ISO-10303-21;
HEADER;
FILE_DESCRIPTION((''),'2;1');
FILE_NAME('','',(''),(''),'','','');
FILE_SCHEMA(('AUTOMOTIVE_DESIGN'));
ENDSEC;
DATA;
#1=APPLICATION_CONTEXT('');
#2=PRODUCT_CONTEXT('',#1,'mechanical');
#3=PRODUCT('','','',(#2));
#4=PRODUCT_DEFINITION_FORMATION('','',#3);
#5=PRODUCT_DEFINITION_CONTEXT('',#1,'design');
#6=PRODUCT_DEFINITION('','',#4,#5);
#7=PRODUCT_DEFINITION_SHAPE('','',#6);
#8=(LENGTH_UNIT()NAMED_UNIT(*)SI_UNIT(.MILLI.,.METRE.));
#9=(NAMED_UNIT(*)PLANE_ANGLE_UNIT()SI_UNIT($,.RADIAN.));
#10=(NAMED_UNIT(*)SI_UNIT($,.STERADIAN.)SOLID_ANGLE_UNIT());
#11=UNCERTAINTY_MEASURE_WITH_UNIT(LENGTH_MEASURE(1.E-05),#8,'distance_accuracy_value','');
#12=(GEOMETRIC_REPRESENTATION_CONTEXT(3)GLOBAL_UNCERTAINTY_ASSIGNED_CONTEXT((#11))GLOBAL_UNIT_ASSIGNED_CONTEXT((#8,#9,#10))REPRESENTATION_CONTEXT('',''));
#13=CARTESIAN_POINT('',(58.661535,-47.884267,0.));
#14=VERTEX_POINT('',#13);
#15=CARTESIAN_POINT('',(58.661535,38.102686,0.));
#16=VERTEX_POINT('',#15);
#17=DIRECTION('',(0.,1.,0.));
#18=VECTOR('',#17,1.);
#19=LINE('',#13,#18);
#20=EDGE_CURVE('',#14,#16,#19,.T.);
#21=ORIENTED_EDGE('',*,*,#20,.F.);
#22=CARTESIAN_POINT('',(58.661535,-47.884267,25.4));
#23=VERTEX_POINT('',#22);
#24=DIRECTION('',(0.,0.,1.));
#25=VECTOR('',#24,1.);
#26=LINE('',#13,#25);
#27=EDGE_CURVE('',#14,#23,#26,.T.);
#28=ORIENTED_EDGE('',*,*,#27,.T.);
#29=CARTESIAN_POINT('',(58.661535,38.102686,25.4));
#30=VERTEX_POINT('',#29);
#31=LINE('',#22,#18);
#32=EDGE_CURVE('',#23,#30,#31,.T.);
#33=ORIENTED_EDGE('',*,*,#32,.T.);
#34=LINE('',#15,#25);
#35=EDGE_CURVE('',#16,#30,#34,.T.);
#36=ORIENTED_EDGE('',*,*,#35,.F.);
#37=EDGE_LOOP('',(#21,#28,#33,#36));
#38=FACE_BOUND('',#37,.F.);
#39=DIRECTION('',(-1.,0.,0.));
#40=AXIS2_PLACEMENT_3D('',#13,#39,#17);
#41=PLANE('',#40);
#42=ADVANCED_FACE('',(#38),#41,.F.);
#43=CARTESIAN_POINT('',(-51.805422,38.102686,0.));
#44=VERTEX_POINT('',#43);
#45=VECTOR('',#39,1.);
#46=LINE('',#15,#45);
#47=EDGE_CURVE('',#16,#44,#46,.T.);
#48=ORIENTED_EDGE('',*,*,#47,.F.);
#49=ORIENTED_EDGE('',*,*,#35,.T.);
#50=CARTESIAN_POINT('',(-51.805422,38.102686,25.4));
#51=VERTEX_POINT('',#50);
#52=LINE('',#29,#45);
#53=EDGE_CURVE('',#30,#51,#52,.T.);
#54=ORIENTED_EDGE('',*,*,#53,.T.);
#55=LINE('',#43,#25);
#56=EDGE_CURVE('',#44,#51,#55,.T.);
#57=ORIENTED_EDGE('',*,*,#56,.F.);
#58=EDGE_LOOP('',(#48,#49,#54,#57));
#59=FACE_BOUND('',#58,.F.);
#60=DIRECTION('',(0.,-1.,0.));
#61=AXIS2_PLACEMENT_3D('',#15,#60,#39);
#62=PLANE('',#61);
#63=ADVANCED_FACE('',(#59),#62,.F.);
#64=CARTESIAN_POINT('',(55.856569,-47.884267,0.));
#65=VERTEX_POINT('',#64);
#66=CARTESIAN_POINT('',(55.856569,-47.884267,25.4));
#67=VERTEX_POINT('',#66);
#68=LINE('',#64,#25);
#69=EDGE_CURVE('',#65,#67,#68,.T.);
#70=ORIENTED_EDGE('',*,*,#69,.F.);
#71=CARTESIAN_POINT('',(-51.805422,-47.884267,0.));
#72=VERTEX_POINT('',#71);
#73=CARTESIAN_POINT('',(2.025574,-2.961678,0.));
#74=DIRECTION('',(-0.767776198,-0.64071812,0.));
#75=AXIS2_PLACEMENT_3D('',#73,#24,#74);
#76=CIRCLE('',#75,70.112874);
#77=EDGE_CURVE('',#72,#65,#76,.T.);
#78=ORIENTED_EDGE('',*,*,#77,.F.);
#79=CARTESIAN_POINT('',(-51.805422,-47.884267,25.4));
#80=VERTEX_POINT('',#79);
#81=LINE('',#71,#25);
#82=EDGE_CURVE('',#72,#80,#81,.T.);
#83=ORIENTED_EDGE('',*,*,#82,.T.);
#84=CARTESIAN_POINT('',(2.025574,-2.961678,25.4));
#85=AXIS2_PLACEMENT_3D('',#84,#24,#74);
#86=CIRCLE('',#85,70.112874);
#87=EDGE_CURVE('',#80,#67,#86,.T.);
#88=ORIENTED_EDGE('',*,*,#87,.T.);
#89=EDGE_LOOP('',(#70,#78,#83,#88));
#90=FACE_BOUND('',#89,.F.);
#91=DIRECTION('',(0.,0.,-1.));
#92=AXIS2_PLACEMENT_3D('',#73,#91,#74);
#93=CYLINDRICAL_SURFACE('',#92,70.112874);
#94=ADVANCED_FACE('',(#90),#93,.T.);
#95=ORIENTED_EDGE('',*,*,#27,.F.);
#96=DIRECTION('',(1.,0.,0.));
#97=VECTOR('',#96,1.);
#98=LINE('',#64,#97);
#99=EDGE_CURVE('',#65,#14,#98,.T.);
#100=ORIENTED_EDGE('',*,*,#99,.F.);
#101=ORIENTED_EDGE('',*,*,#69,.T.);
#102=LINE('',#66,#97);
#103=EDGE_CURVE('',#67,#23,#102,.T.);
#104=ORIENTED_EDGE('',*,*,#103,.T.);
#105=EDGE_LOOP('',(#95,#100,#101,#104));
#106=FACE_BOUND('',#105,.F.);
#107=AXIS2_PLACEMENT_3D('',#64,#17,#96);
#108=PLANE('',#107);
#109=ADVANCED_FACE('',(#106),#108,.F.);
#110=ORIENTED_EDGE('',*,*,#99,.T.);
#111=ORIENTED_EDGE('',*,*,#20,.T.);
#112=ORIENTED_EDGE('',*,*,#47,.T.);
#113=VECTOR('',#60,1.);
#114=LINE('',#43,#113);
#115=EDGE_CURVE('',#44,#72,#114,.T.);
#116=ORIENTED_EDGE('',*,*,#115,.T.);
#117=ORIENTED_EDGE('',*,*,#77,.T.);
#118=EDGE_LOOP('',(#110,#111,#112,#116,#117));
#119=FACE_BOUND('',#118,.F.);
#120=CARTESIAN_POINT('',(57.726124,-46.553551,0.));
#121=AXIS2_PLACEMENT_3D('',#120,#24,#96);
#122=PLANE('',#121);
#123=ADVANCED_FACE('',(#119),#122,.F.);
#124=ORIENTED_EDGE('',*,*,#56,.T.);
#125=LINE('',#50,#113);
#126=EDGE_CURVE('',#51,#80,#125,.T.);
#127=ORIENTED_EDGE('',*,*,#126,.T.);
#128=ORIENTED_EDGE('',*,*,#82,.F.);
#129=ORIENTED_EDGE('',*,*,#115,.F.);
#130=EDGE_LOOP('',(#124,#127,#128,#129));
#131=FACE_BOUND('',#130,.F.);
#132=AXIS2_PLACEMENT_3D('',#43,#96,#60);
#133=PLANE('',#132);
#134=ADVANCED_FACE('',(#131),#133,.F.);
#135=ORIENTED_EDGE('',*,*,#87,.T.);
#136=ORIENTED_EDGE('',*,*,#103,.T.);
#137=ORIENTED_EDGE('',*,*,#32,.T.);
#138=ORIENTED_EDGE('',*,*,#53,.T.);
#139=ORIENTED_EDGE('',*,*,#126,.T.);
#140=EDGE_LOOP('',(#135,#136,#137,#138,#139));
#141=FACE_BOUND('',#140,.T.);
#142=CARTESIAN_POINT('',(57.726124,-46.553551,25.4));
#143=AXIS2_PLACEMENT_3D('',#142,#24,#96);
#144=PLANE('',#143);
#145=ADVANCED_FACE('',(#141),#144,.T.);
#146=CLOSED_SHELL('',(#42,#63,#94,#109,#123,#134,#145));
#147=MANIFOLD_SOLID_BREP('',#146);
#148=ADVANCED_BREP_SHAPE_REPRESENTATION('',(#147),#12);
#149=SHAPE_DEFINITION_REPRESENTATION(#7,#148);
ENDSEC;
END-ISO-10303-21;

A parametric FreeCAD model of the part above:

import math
import FreeCAD as App
import Part
import Sketcher

V = App.Vector
Q = App.Units.Quantity

doc = App.newDocument("Part")
body = doc.addObject("PartDesign::Body", "Body")

# Sketch on XY plane
sketch1 = doc.addObject("Sketcher::SketchObject", "Sketch")
body.addObject(sketch1)
sketch1.AttachmentSupport = (doc.XY_Plane, [""])
sketch1.MapMode = "FlatFace"
sketch1.addGeometry(Part.LineSegment(V(55.9, -47.9, 0), V(58.7, -47.9, 0)), False)
sketch1.addGeometry(Part.LineSegment(V(58.7, -47.9, 0), V(58.7, 38.1, 0)), False)
sketch1.addGeometry(Part.LineSegment(V(58.7, 38.1, 0), V(-51.8, 38.1, 0)), False)
sketch1.addGeometry(Part.LineSegment(V(-51.8, 38.1, 0), V(-51.8, -47.9, 0)), False)
sketch1.addGeometry(Part.ArcOfCircle(Part.Circle(V(2, -3, 0), V(0, 0, 1), 70.1), math.radians(-140), math.radians(-40)), False)
sketch1.addConstraint(Sketcher.Constraint("Coincident", 0, 2, 1, 1))
sketch1.addConstraint(Sketcher.Constraint("Coincident", 1, 2, 2, 1))
sketch1.addConstraint(Sketcher.Constraint("Coincident", 2, 2, 3, 1))
sketch1.addConstraint(Sketcher.Constraint("Coincident", 3, 2, 4, 1))
sketch1.addConstraint(Sketcher.Constraint("Coincident", 4, 2, 0, 1))
sketch1.addConstraint(Sketcher.Constraint("Horizontal", 0))
sketch1.addConstraint(Sketcher.Constraint("Vertical", 1))
sketch1.addConstraint(Sketcher.Constraint("Horizontal", 2))
sketch1.addConstraint(Sketcher.Constraint("Vertical", 3))
sketch1.addConstraint(Sketcher.Constraint("Horizontal", 0, 2, 3, 2))
sketch1.addConstraint(Sketcher.Constraint("Radius", 4, 70.112874))
sketch1.addConstraint(Sketcher.Constraint("DistanceX", 0, 1, 0, 2, 2.804966))
sketch1.addConstraint(Sketcher.Constraint("DistanceX", 2, 2, 2, 1, 110.466957))
sketch1.addConstraint(Sketcher.Constraint("DistanceY", 1, 1, 1, 2, 85.986953))
sketch1.addConstraint(Sketcher.Constraint("DistanceY", 4, 3, -1, 1, 2.961678))
sketch1.addConstraint(Sketcher.Constraint("DistanceX", -1, 1, 4, 2, 55.856569))
pad1 = doc.addObject("PartDesign::Pad", "Pad")
body.addObject(pad1)
pad1.Profile = sketch1
pad1.Length = Q("1 in")

doc.recompute()
